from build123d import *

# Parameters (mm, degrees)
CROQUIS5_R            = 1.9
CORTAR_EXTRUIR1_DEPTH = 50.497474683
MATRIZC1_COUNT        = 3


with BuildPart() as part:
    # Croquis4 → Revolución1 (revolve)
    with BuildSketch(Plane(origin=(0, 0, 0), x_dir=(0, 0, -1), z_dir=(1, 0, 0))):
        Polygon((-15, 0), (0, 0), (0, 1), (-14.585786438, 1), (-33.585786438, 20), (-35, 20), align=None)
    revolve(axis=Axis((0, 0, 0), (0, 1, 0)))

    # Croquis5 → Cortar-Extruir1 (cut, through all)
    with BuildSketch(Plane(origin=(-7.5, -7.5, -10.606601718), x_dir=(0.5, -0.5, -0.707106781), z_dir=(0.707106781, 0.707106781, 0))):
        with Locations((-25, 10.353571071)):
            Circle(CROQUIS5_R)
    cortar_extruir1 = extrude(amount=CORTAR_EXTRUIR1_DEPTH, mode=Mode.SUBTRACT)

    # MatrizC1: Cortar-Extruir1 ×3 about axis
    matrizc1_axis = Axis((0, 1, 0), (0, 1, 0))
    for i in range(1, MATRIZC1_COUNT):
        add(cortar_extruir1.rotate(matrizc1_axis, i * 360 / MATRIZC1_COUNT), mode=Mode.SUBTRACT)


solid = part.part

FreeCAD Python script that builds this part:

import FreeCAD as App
import Part
import Sketcher

V = App.Vector
Q = App.Units.Quantity


def add_polygon(sketch, points):
    """Adds a closed chain of lines whose ends are joined by coincident constraints."""
    first, n = sketch.GeometryCount, len(points)
    for a, b in zip(points, points[1:] + points[:1]):
        sketch.addGeometry(Part.LineSegment(App.Vector(*a, 0), App.Vector(*b, 0)), False)
    for i in range(n):
        sketch.addConstraint(Sketcher.Constraint("Coincident", first + i, 2, first + (i + 1) % n, 1))

doc = App.newDocument("Part")
body = doc.addObject("PartDesign::Body", "Body")

sketch1 = body.newObject("Sketcher::SketchObject", "Sketch")
sketch1.AttachmentSupport = (doc.getObject("YZ_Plane"), [""])
sketch1.MapMode = "FlatFace"
add_polygon(sketch1, [(0, 15), (0, 0), (1, 0), (1, 14.6), (20, 33.6), (20, 35)])
sketch1.addConstraint([
    Sketcher.Constraint("Vertical", 0),
    Sketcher.Constraint("Horizontal", 1),
    Sketcher.Constraint("Vertical", 2),
    Sketcher.Constraint("Vertical", 4),
    Sketcher.Constraint("Coincident", 0, 2, -1, 1),
    Sketcher.Constraint("Parallel", 3, 5),
    Sketcher.Constraint("DistanceX", 1, 1, 1, 2, Q("1 mm")),
    Sketcher.Constraint("DistanceY", 0, 2, 0, 1, Q("15 mm")),
    Sketcher.Constraint("Angle", 3, Q("45 deg")),
    Sketcher.Constraint("DistanceX", -1, 1, 3, 2, Q("20 mm")),
    Sketcher.Constraint("DistanceY", 2, 1, 2, 2, Q("14.585786 mm")),
])
revolution = body.newObject("PartDesign::Revolution", "Revolution")
revolution.Profile = sketch1
revolution.ReferenceAxis = (sketch1, ["H_Axis"])
revolution.Angle = 360

sketch2 = body.newObject("Sketcher::SketchObject", "Sketch001")
sketch2.Placement = App.Placement(V(-7.5, -7.5, -10.606602), App.Rotation(V(0.5, -0.5, -0.707106781), V(-0.5, 0.5, -0.707106781), V(0.707106781, 0.707106781, 0), "ZXY"))
sketch2.addGeometry(Part.Circle(V(-25, 10.4, 0), V(0, 0, 1), 1.9), False)
sketch2.addConstraint([
    Sketcher.Constraint("Diameter", 0, Q("3.8 mm")),
    Sketcher.Constraint("DistanceX", 0, 3, -1, 1, Q("25 mm")),
    Sketcher.Constraint("DistanceY", -1, 1, 0, 3, Q("10.353571 mm")),
])
pocket1 = body.newObject("PartDesign::Pocket", "Pocket")
pocket1.Profile = sketch2
pocket1.Type = "ThroughAll"
pocket1.Reversed = True
doc.recompute()

polarpattern = body.newObject("PartDesign::PolarPattern", "PolarPattern")
polarpattern.Originals = [pocket1]
polarpattern.Axis = (doc.getObject("Y_Axis"), [""])
polarpattern.Angle = 360
polarpattern.Occurrences = 3
body.Tip = polarpattern

doc.recompute()
